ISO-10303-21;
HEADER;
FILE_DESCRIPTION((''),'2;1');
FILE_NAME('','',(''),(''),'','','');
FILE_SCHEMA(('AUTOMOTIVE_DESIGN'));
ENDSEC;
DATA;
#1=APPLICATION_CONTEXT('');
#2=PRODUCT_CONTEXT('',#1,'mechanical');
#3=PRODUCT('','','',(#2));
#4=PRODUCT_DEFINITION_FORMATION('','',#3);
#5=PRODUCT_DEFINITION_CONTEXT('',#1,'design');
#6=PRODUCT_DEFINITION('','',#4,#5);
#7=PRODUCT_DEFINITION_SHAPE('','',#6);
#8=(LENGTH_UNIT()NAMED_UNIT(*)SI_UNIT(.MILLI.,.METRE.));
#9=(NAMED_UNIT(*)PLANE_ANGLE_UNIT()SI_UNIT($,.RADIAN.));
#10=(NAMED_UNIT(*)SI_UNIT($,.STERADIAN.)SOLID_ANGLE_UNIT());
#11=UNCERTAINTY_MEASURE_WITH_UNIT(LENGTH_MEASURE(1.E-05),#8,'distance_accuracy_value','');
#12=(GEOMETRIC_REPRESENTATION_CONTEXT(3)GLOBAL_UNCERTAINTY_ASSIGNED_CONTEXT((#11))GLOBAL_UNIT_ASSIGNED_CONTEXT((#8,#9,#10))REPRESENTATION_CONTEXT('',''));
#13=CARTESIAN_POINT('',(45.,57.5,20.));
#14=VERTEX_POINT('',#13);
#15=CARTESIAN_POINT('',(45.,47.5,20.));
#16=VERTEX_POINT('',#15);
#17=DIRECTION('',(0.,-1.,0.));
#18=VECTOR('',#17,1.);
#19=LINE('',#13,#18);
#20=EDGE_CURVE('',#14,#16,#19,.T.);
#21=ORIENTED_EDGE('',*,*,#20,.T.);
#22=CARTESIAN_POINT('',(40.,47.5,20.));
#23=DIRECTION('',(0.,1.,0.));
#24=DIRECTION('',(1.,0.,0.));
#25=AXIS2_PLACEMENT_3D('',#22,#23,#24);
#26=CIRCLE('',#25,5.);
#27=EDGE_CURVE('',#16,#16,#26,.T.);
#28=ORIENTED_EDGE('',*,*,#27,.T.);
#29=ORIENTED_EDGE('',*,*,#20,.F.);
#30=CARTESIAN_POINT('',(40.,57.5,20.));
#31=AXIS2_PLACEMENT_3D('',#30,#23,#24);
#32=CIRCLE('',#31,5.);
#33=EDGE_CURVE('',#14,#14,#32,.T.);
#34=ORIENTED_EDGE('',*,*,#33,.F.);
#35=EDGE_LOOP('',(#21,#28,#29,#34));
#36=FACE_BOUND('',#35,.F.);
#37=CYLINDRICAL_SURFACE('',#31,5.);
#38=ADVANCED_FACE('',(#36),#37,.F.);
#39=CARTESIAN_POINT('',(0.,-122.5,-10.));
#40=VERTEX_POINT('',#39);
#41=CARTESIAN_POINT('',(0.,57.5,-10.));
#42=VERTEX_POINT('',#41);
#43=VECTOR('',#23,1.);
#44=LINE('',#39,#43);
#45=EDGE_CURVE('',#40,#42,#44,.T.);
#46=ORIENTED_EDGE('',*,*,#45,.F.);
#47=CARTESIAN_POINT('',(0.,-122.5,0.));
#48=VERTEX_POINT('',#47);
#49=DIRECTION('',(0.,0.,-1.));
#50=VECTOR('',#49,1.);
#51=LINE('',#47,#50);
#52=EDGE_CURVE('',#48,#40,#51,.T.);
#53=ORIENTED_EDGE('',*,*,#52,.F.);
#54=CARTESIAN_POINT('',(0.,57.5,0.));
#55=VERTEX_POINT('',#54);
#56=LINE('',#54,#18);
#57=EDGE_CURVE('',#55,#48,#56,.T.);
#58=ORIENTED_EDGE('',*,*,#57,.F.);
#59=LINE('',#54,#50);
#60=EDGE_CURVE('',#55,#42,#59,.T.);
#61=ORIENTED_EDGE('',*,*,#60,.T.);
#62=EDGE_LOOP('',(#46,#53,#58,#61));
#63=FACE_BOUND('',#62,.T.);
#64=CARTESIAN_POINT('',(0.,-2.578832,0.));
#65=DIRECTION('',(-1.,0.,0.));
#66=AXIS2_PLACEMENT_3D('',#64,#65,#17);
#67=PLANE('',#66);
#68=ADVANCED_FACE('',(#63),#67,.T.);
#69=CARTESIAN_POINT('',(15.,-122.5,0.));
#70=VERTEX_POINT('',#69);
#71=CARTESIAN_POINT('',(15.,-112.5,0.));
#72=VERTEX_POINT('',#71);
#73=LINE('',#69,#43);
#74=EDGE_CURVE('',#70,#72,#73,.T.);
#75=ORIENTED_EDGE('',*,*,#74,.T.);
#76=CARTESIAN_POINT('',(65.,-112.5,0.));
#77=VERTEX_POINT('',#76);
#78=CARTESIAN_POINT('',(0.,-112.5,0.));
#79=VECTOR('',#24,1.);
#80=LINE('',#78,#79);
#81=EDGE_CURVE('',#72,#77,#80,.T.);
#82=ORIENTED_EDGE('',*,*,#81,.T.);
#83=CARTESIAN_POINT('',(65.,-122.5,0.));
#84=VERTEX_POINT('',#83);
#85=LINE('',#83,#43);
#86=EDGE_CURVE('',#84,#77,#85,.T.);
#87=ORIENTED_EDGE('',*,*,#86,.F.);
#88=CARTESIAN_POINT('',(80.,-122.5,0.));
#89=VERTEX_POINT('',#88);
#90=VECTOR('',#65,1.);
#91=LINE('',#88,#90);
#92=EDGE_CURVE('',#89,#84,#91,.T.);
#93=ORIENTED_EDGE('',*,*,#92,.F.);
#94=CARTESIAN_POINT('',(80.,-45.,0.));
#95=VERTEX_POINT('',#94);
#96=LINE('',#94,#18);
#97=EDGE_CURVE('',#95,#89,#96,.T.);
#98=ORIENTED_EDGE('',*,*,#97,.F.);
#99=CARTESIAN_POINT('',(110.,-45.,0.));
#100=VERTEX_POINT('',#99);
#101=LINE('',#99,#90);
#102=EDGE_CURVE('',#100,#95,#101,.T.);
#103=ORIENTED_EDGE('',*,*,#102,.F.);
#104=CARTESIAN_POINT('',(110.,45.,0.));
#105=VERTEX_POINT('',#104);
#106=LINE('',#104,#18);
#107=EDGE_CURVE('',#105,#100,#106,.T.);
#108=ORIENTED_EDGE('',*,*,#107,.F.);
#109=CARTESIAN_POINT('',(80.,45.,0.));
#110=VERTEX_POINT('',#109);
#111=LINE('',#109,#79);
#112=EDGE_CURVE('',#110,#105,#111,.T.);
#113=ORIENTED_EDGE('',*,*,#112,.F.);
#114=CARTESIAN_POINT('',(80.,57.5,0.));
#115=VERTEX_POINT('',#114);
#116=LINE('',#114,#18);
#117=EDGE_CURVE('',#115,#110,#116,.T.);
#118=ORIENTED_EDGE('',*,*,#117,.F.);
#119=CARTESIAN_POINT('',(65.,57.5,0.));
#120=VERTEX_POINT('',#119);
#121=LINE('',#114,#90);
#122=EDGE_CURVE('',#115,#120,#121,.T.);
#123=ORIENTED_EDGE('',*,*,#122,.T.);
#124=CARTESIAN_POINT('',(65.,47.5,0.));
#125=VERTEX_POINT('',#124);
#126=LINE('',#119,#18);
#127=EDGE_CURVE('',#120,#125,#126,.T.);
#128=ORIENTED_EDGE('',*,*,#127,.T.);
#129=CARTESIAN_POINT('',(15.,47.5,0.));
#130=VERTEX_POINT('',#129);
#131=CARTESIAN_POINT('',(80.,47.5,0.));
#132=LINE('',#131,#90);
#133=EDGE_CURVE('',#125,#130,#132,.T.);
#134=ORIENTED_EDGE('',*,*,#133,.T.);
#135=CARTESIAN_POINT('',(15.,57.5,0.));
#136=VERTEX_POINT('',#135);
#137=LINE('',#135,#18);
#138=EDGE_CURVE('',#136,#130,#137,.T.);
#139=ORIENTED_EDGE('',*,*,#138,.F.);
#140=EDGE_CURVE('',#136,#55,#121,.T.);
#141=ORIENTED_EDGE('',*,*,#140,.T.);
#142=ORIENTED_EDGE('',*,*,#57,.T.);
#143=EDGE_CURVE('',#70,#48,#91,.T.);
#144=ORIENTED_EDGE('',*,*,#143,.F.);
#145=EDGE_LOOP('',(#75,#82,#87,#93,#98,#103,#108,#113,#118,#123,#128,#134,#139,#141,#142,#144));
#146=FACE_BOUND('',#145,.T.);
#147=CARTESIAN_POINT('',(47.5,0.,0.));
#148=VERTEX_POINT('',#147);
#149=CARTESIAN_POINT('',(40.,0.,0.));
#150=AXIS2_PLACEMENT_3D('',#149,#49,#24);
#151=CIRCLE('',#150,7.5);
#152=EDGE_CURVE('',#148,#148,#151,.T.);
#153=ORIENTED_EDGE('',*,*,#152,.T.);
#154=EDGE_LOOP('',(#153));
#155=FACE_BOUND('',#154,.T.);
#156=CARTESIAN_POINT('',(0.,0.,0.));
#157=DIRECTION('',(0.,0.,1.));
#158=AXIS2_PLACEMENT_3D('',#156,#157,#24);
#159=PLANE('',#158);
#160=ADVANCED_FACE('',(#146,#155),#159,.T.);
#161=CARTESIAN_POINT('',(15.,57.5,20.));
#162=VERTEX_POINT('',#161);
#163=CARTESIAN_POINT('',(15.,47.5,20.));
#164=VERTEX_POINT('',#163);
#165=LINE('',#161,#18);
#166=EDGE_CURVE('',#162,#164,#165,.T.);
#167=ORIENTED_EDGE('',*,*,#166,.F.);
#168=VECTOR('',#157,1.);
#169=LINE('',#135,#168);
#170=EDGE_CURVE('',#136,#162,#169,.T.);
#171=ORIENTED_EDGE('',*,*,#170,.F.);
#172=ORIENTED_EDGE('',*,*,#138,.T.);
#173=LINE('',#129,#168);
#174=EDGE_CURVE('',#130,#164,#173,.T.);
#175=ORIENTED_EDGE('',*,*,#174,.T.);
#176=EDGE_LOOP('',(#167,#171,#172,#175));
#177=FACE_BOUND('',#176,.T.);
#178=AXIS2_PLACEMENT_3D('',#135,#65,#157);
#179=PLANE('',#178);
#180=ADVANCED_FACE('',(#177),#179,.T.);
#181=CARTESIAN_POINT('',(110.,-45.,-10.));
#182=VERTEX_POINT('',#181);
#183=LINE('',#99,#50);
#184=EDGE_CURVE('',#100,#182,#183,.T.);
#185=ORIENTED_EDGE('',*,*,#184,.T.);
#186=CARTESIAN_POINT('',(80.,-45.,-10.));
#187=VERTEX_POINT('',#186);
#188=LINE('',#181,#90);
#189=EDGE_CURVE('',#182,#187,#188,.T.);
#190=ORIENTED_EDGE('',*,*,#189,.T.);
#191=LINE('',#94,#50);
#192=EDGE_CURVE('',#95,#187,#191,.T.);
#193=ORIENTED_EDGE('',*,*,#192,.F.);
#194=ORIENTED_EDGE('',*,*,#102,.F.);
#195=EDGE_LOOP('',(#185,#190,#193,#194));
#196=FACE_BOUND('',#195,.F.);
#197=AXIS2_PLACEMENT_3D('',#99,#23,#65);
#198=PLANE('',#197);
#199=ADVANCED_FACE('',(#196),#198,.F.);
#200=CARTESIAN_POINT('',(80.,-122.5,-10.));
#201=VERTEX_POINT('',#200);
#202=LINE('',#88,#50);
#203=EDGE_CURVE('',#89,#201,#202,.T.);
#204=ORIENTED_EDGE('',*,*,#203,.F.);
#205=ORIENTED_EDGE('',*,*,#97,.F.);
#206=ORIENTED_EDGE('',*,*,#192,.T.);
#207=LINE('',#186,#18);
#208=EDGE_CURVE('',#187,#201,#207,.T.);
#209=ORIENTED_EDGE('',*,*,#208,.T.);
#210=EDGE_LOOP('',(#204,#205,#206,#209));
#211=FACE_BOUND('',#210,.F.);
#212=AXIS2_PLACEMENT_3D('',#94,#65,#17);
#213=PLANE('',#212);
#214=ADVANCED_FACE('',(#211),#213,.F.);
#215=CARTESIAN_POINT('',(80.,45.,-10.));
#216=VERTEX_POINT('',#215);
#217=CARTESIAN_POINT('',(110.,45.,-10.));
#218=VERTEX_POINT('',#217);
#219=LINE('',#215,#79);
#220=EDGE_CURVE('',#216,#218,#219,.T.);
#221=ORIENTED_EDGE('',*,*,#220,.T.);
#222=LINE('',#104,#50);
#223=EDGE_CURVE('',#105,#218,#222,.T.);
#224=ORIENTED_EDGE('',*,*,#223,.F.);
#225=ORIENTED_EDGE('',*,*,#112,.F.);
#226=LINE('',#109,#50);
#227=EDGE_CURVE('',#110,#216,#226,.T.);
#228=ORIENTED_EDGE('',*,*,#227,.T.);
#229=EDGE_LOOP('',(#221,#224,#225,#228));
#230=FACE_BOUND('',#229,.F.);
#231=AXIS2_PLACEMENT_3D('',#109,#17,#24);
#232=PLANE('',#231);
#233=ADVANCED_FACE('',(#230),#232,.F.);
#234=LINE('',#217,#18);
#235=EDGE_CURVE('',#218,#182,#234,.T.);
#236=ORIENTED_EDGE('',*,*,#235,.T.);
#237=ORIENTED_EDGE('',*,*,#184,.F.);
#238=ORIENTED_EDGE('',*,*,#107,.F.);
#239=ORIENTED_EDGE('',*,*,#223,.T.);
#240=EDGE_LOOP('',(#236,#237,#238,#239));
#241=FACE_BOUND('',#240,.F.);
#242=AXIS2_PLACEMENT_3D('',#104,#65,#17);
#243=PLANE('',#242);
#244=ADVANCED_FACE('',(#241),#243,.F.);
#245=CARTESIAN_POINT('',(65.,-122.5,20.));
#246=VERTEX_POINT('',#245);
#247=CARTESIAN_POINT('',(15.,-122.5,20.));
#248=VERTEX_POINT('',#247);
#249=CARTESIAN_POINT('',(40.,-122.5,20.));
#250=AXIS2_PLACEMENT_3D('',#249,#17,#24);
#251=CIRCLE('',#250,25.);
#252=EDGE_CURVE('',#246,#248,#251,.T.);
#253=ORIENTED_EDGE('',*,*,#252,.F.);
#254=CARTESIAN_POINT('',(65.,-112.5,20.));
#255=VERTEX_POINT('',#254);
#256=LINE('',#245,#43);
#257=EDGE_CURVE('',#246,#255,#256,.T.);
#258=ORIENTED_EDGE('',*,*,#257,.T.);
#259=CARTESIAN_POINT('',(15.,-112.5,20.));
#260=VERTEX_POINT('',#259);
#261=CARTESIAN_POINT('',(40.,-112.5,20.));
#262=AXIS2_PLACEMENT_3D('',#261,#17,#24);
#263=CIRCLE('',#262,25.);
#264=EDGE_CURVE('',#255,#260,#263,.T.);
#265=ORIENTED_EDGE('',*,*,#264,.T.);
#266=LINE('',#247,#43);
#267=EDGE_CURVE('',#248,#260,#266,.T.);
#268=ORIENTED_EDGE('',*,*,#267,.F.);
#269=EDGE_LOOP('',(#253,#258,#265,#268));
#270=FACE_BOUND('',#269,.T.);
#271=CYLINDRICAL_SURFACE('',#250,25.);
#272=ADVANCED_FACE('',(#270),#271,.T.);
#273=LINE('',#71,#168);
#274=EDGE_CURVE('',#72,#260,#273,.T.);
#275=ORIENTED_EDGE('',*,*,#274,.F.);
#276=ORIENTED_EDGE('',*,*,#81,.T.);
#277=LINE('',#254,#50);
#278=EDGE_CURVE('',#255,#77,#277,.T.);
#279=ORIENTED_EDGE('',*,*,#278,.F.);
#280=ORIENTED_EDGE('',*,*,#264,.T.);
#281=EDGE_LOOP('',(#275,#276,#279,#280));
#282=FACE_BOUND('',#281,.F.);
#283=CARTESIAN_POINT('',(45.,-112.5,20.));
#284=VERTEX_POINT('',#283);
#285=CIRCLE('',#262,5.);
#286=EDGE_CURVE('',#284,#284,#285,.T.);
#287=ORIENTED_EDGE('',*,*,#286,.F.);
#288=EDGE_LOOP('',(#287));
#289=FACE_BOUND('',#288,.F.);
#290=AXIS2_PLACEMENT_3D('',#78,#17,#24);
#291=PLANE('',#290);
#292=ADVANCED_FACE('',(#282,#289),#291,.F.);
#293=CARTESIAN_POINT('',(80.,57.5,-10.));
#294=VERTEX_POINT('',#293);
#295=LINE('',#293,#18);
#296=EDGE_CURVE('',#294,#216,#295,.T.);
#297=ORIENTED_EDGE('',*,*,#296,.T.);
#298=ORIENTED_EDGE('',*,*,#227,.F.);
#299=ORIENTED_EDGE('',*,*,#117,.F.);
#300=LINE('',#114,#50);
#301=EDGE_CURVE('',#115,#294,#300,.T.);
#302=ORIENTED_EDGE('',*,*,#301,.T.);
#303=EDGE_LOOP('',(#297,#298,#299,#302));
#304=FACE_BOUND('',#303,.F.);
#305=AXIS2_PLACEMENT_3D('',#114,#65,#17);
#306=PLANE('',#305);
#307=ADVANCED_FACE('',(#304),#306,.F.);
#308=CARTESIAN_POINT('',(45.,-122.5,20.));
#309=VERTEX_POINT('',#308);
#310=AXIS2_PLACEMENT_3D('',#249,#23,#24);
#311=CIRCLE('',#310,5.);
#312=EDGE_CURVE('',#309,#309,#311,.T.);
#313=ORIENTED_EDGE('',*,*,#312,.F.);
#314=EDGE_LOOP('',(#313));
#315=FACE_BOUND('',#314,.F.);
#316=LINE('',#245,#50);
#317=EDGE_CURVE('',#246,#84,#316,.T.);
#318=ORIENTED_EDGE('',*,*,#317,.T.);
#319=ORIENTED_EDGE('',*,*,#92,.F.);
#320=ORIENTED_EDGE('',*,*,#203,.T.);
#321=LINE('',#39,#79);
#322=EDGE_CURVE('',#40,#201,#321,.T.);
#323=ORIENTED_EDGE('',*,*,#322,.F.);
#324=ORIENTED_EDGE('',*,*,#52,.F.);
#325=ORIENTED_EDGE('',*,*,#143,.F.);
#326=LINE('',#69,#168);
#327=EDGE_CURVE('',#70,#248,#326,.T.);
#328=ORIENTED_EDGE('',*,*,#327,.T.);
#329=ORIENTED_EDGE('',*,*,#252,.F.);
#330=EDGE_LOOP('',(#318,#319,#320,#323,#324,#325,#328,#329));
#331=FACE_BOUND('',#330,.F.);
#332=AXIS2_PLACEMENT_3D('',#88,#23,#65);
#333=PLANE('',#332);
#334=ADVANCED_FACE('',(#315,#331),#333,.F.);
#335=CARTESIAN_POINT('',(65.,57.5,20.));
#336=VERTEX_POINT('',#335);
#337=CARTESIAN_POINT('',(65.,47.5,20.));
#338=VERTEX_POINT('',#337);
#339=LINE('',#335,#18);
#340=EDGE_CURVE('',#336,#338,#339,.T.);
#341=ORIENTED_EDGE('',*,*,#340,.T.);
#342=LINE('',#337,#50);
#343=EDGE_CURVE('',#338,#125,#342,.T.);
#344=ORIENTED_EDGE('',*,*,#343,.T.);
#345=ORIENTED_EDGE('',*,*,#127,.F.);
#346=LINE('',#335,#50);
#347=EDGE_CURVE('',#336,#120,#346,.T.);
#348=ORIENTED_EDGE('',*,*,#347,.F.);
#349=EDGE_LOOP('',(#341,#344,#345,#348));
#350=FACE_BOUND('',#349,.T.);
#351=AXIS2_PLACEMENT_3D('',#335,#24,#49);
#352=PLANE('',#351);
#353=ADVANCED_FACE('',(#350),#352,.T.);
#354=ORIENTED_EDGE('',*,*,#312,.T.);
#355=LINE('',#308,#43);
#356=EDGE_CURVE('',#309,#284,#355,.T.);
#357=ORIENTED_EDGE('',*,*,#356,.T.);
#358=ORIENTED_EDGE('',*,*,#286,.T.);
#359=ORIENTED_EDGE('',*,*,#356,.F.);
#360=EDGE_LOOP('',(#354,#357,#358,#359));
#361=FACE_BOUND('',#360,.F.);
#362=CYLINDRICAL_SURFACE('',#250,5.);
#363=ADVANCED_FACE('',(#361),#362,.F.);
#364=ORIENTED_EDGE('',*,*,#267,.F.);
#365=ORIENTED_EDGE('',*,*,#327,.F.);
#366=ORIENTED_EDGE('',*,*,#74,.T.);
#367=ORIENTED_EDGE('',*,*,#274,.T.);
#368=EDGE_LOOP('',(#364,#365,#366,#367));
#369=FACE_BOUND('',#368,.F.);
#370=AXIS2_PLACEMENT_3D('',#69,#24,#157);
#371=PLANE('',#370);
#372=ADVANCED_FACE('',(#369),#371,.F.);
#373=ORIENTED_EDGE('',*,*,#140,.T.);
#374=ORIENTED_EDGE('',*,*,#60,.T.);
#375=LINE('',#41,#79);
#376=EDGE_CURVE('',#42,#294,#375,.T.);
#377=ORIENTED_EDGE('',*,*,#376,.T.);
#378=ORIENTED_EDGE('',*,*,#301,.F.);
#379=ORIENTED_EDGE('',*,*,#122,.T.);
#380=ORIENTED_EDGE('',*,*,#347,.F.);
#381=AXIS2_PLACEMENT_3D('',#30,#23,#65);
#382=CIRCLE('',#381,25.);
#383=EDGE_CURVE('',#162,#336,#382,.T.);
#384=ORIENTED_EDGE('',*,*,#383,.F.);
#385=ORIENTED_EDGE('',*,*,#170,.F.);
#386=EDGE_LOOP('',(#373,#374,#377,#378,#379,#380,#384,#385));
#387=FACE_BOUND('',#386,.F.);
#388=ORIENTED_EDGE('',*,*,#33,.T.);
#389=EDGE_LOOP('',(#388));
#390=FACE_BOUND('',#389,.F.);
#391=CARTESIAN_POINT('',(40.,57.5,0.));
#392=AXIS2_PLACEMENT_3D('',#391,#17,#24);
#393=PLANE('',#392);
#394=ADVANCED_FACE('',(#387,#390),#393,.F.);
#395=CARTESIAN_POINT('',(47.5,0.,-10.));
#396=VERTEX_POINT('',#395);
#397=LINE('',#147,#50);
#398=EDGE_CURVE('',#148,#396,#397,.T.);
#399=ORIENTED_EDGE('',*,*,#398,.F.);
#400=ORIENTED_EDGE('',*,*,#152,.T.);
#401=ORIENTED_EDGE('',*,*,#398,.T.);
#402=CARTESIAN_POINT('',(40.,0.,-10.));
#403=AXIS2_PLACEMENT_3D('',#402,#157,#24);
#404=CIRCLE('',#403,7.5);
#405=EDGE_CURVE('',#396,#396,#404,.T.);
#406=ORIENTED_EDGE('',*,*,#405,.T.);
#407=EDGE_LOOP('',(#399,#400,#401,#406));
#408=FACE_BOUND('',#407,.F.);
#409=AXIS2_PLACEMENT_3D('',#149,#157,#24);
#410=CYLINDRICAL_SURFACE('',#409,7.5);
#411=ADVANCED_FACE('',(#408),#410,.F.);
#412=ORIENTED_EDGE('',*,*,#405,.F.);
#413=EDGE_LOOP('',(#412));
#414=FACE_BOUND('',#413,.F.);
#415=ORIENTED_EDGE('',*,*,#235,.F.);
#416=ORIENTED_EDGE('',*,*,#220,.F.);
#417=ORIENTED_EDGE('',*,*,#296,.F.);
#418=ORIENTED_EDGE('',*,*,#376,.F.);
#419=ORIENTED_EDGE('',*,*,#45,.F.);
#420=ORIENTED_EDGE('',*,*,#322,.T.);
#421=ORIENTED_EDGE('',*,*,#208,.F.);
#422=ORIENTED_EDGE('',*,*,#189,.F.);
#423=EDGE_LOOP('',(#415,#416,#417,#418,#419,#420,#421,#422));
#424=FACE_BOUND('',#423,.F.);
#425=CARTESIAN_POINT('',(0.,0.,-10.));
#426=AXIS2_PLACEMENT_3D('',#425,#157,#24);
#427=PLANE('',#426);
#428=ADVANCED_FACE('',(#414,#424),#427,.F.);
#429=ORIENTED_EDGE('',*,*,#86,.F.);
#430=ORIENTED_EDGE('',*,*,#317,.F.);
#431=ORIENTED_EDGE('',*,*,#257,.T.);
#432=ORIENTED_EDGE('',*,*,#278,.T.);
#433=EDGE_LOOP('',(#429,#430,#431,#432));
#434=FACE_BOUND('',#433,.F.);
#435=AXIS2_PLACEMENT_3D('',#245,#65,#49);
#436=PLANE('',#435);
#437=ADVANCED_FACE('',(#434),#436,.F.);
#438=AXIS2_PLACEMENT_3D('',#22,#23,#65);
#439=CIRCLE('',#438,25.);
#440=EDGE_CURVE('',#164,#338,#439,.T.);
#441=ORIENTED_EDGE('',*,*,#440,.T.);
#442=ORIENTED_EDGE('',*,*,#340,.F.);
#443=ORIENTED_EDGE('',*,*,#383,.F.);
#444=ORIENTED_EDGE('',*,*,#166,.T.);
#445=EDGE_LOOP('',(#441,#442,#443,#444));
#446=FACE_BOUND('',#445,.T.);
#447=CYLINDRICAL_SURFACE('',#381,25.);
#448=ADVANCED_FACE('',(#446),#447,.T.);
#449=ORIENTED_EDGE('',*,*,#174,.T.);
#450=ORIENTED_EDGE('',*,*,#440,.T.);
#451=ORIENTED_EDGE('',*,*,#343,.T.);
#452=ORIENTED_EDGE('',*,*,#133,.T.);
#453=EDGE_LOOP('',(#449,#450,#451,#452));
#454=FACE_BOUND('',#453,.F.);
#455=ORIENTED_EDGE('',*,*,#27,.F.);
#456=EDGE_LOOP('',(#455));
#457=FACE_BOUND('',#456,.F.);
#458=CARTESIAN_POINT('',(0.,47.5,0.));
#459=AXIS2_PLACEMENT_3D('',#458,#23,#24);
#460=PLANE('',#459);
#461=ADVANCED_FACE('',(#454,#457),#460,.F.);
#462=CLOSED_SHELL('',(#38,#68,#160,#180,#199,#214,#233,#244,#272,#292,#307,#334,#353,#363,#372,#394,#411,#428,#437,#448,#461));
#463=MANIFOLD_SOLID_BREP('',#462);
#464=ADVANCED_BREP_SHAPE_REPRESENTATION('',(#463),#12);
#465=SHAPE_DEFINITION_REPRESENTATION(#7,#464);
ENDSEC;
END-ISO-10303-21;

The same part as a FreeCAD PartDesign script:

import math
import FreeCAD as App
import Part
import Sketcher

V = App.Vector
Q = App.Units.Quantity


def add_polygon(sketch, points):
    """Adds a closed chain of lines whose ends are joined by coincident constraints."""
    first, n = sketch.GeometryCount, len(points)
    for a, b in zip(points, points[1:] + points[:1]):
        sketch.addGeometry(Part.LineSegment(App.Vector(*a, 0), App.Vector(*b, 0)), False)
    for i in range(n):
        sketch.addConstraint(Sketcher.Constraint("Coincident", first + i, 2, first + (i + 1) % n, 1))

doc = App.newDocument("Part")
body = doc.addObject("PartDesign::Body", "Body")

# Sketch on XY plane
sketch1 = body.newObject("Sketcher::SketchObject", "Sketch")
sketch1.AttachmentSupport = (doc.getObject("XY_Plane"), [""])
sketch1.MapMode = "FlatFace"
add_polygon(sketch1, [(80, -122), (80, -45), (110, -45), (110, 45), (80, 45), (80, 58), (0, 58), (0, -122)])  # lines 0-7
sketch1.addConstraint([
    Sketcher.Constraint("Vertical", 0),
    Sketcher.Constraint("Horizontal", 1),
    Sketcher.Constraint("Vertical", 2),
    Sketcher.Constraint("Horizontal", 3),
    Sketcher.Constraint("Vertical", 4),
    Sketcher.Constraint("Horizontal", 5),
    Sketcher.Constraint("Vertical", 6),
    Sketcher.Constraint("Horizontal", 7),
    Sketcher.Constraint("Symmetric", 0, 2, 3, 2, -1),
    Sketcher.Constraint("PointOnObject", 5, 2, -2),
    Sketcher.Constraint("DistanceX", 1, 1, 1, 2, Q("30 mm")),
    Sketcher.Constraint("DistanceX", 5, 2, 5, 1, Q("80 mm")),
    Sketcher.Constraint("DistanceY", 4, 1, 4, 2, Q("12.5 mm")),
    Sketcher.Constraint("DistanceY", 0, 2, -1, 1, Q("45 mm")),
    Sketcher.Constraint("DistanceY", 6, 2, -1, 1, Q("122.5 mm")),
])
pad1 = body.newObject("PartDesign::Pad", "Pad")
pad1.Profile = sketch1
pad1.Length = 10
pad1.Reversed = True

# Sketch on XY plane
sketch2 = body.newObject("Sketcher::SketchObject", "Sketch001")
sketch2.AttachmentSupport = (doc.getObject("XY_Plane"), [""])
sketch2.MapMode = "FlatFace"
sketch2.addGeometry(Part.Circle(V(40, 0, 0), V(0, 0, 1), 8), False)
sketch2.addConstraint([
    Sketcher.Constraint("PointOnObject", 0, 3, -1),
    Sketcher.Constraint("Diameter", 0, Q("15 mm")),
    Sketcher.Constraint("DistanceX", -1, 1, 0, 3, Q("40 mm")),
])
pocket1 = body.newObject("PartDesign::Pocket", "Pocket")
pocket1.Profile = sketch2
pocket1.Length = 40

# Sketch on XZ plane
sketch3 = body.newObject("Sketcher::SketchObject", "Sketch002")
sketch3.AttachmentSupport = (doc.getObject("XZ_Plane"), [""])
sketch3.MapMode = "FlatFace"
sketch3.AttachmentOffset = App.Placement(V(0, 0, 122.5), App.Rotation())
sketch3.addGeometry([
    Part.LineSegment(V(15, 20, 0), V(15, 0, 0)),  # 0
    Part.LineSegment(V(15, 0, 0), V(65, 0, 0)),  # 1
    Part.LineSegment(V(65, 0, 0), V(65, 20, 0)),  # 2
    Part.ArcOfCircle(Part.Circle(V(40, 20, 0), V(0, 0, 1), 25), math.radians(0), math.radians(180)),  # 3
    Part.Circle(V(40, 20, 0), V(0, 0, 1), 5),  # 4
], False)
sketch3.addConstraint([
    Sketcher.Constraint("Coincident", 0, 2, 1, 1),
    Sketcher.Constraint("Coincident", 1, 2, 2, 1),
    Sketcher.Constraint("Tangent", 2, 2, 3, 1),
    Sketcher.Constraint("Tangent", 3, 2, 0, 1),
    Sketcher.Constraint("Vertical", 0),
    Sketcher.Constraint("Horizontal", 1),
    Sketcher.Constraint("Vertical", 2),
    Sketcher.Constraint("Coincident", 4, 3, 3, 3),
    Sketcher.Constraint("PointOnObject", 0, 2, -1),
    Sketcher.Constraint("Diameter", 4, Q("10 mm")),
    Sketcher.Constraint("Radius", 3, Q("25 mm")),
    Sketcher.Constraint("DistanceY", 0, 2, 0, 1, Q("20 mm")),
    Sketcher.Constraint("DistanceX", -1, 1, 3, 3, Q("40 mm")),
])
pad2 = body.newObject("PartDesign::Pad", "Pad001")
pad2.Profile = sketch3
pad2.Length = 10
pad2.Reversed = True

# Sketch on XZ plane
sketch4 = body.newObject("Sketcher::SketchObject", "Sketch003")
sketch4.AttachmentSupport = (doc.getObject("XZ_Plane"), [""])
sketch4.MapMode = "FlatFace"
sketch4.AttachmentOffset = App.Placement(V(0, 0, -57.5), App.Rotation())
sketch4.addGeometry([
    Part.LineSegment(V(65, 0, 0), V(15, 0, 0)),  # 0
    Part.LineSegment(V(15, 0, 0), V(15, 20, 0)),  # 1
    Part.ArcOfCircle(Part.Circle(V(40, 20, 0), V(0, 0, 1), 25), math.radians(0), math.radians(180)),  # 2
    Part.LineSegment(V(65, 20, 0), V(65, 0, 0)),  # 3
    Part.Circle(V(40, 20, 0), V(0, 0, 1), 5),  # 4
], False)
sketch4.addConstraint([
    Sketcher.Constraint("Coincident", 0, 2, 1, 1),
    Sketcher.Constraint("Tangent", 1, 2, 2, 2),
    Sketcher.Constraint("Tangent", 2, 1, 3, 1),
    Sketcher.Constraint("Coincident", 3, 2, 0, 1),
    Sketcher.Constraint("Horizontal", 0),
    Sketcher.Constraint("Vertical", 1),
    Sketcher.Constraint("Vertical", 3),
    Sketcher.Constraint("Coincident", 4, 3, 2, 3),
    Sketcher.Constraint("PointOnObject", 0, 2, -1),
    Sketcher.Constraint("Diameter", 4, Q("10 mm")),
    Sketcher.Constraint("Radius", 2, Q("25 mm")),
    Sketcher.Constraint("DistanceY", 1, 1, 1, 2, Q("20 mm")),
    Sketcher.Constraint("DistanceX", -1, 1, 2, 3, Q("40 mm")),
])
pad3 = body.newObject("PartDesign::Pad", "Pad002")
pad3.Profile = sketch4
pad3.Length = 10

doc.recompute()
